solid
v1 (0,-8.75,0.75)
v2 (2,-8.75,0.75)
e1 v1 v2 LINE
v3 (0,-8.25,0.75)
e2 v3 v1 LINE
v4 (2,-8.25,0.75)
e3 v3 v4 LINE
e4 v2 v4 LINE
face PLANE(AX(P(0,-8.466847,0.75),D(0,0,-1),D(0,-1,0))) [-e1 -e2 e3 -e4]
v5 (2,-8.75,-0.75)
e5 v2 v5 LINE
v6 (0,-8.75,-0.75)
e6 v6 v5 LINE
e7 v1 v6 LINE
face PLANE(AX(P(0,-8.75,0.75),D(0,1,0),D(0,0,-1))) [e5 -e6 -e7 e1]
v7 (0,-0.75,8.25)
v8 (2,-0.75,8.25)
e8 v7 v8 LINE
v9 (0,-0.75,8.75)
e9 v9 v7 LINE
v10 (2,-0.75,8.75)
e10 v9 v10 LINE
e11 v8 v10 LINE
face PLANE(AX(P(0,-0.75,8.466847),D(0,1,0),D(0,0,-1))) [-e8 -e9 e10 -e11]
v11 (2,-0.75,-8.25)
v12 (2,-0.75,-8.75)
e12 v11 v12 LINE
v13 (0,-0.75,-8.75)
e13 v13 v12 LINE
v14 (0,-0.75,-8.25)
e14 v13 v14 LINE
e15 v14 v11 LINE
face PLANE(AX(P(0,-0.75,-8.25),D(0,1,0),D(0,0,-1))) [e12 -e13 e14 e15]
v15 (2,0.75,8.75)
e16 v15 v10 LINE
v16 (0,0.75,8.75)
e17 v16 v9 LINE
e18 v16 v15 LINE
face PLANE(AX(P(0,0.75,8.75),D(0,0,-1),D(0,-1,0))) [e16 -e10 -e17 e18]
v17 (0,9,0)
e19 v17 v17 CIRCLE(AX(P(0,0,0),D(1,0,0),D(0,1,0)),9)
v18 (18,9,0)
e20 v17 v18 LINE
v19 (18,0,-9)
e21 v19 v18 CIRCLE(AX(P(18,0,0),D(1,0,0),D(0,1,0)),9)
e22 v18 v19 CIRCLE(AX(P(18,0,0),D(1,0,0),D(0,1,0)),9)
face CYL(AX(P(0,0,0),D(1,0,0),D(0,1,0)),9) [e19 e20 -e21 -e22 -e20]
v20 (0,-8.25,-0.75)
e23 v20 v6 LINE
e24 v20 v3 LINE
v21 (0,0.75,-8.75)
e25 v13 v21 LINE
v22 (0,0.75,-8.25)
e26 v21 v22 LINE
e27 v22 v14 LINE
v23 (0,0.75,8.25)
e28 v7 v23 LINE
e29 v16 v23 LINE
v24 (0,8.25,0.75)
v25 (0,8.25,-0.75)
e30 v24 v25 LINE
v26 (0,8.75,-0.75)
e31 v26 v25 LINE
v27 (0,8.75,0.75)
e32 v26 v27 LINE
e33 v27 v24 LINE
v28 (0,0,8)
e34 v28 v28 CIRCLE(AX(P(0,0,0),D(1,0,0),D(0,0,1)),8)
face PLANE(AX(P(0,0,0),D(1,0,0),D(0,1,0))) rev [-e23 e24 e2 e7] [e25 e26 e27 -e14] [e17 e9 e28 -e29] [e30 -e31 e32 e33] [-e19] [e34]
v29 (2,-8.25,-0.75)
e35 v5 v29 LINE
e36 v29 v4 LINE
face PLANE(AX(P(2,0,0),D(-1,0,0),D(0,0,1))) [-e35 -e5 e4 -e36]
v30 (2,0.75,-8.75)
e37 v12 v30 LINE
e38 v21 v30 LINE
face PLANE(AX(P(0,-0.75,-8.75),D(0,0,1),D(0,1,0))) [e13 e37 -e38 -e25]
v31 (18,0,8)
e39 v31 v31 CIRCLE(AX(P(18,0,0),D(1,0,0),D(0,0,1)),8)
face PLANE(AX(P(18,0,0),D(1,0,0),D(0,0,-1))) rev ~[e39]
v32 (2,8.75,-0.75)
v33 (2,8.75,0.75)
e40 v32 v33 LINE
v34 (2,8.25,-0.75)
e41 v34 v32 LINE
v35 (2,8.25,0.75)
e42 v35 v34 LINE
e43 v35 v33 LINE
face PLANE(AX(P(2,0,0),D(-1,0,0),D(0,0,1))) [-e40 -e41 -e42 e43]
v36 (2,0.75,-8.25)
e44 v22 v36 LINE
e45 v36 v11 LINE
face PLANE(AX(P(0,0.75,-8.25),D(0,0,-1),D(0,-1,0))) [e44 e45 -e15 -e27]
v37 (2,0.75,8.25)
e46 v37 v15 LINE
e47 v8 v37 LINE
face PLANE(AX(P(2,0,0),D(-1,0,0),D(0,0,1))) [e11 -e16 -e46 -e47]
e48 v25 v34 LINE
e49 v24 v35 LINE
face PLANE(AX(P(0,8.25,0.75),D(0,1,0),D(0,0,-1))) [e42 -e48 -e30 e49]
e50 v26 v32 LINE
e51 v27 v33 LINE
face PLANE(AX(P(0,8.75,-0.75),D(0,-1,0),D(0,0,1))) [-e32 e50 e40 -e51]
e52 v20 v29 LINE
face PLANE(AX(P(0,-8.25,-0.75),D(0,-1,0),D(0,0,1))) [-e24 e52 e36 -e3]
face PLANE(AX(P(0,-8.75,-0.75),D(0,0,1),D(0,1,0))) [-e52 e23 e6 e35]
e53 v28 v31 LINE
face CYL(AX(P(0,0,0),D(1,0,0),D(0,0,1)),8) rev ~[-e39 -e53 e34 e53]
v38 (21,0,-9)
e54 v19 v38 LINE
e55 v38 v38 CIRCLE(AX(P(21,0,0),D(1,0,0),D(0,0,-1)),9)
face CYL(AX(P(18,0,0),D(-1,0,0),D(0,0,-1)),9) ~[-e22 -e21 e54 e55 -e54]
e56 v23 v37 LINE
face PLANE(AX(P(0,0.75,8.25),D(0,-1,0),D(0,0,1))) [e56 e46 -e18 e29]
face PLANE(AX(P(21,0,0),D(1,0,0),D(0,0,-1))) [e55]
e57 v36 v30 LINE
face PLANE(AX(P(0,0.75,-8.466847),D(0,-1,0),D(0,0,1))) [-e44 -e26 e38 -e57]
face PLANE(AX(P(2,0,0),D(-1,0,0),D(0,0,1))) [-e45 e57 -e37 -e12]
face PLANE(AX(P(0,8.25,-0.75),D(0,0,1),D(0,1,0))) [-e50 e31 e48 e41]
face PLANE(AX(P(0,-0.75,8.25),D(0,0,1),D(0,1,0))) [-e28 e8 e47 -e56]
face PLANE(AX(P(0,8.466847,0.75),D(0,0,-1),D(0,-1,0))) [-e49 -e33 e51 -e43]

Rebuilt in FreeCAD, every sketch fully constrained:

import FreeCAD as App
import Part
import Sketcher

doc = App.newDocument("Part")
params = doc.addObject("Spreadsheet::Sheet", "Params")
for row, (alias, value) in enumerate([
    ("sketch1_width", "18 mm"),
    ("sketch1_height", "9 mm"),
    ("revolution_angle", "360 deg"),
    ("sketch2_diameter", "16 mm"),
    ("hole_diameter", "16 mm"),
    ("sketch3_diameter", "18 mm"),
    ("pad1_length", "3 mm"),
    ("sketch4_width", "1.5 mm"),
    ("sketch4_width2", "0.5 mm"),
    ("pocket1_length", "2 mm"),
], start=1):
    params.set(f"A{row}", alias)
    params.set(f"B{row}", "=" + value)
    params.setAlias(f"B{row}", alias)

body = doc.addObject("PartDesign::Body", "Body")

# Sketch on XY plane
sketch1 = doc.addObject("Sketcher::SketchObject", "Sketch")
body.addObject(sketch1)
sketch1.AttachmentSupport = (doc.XY_Plane, [""])
sketch1.MapMode = "FlatFace"
sketch1.addGeometry(Part.LineSegment(App.Vector(0, 9, 0), App.Vector(0, 0, 0)), False)
sketch1.addGeometry(Part.LineSegment(App.Vector(0, 0, 0), App.Vector(18, 0, 0)), False)
sketch1.addGeometry(Part.LineSegment(App.Vector(18, 0, 0), App.Vector(18, 9, 0)), False)
sketch1.addGeometry(Part.LineSegment(App.Vector(18, 9, 0), App.Vector(0, 9, 0)), False)
sketch1.addConstraint(Sketcher.Constraint("Coincident", 0, 2, 1, 1))
sketch1.addConstraint(Sketcher.Constraint("Coincident", 1, 2, 2, 1))
sketch1.addConstraint(Sketcher.Constraint("Coincident", 2, 2, 3, 1))
sketch1.addConstraint(Sketcher.Constraint("Coincident", 3, 2, 0, 1))
sketch1.addConstraint(Sketcher.Constraint("Vertical", 0))
sketch1.addConstraint(Sketcher.Constraint("Horizontal", 1))
sketch1.addConstraint(Sketcher.Constraint("Vertical", 2))
sketch1.addConstraint(Sketcher.Constraint("Horizontal", 3))
sketch1.addConstraint(Sketcher.Constraint("Coincident", 0, 2, -1, 1))
sketch1.addConstraint(Sketcher.Constraint("DistanceX", 1, 1, 1, 2, 18.0))
sketch1.addConstraint(Sketcher.Constraint("DistanceY", 0, 2, 0, 1, 9.0))
sketch1.setExpression("Constraints[9]", "Params.sketch1_width")
sketch1.setExpression("Constraints[10]", "Params.sketch1_height")
revolution = doc.addObject("PartDesign::Revolution", "Revolution")
body.addObject(revolution)
revolution.Profile = sketch1
revolution.ReferenceAxis = (sketch1, ["H_Axis"])
revolution.setExpression("Angle", "Params.revolution_angle")

# Sketch on YZ plane
sketch2 = doc.addObject("Sketcher::SketchObject", "Sketch001")
body.addObject(sketch2)
sketch2.AttachmentSupport = (doc.YZ_Plane, [""])
sketch2.MapMode = "FlatFace"
sketch2.addGeometry(Part.Circle(App.Vector(0, 0, 0), App.Vector(0, 0, 1), 8), False)
sketch2.addConstraint(Sketcher.Constraint("Coincident", 0, 3, -1, 1))
sketch2.addConstraint(Sketcher.Constraint("Diameter", 0, 16.0))
sketch2.setExpression("Constraints[1]", "Params.sketch2_diameter")
doc.recompute()
hole = doc.addObject("PartDesign::Hole", "Hole")
body.addObject(hole)
hole.Profile = sketch2
hole.ThreadType = "None"
hole.setExpression("Diameter", "Params.hole_diameter")
hole.DepthType = "ThroughAll"
hole.Reversed = True

# Sketch on YZ plane
sketch3 = doc.addObject("Sketcher::SketchObject", "Sketch002")
body.addObject(sketch3)
sketch3.AttachmentSupport = (doc.YZ_Plane, [""])
sketch3.MapMode = "FlatFace"
sketch3.AttachmentOffset = App.Placement(App.Vector(0, 0, 18), App.Rotation())
sketch3.addGeometry(Part.Circle(App.Vector(0, 0, 0), App.Vector(0, 0, 1), 9), False)
sketch3.addConstraint(Sketcher.Constraint("Coincident", 0, 3, -1, 1))
sketch3.addConstraint(Sketcher.Constraint("Diameter", 0, 18.0))
sketch3.setExpression("Constraints[1]", "Params.sketch3_diameter")
pad1 = doc.addObject("PartDesign::Pad", "Pad")
body.addObject(pad1)
pad1.Profile = sketch3
pad1.setExpression("Length", "Params.pad1_length")

# Sketch on YZ plane
sketch4 = doc.addObject("Sketcher::SketchObject", "Sketch003")
body.addObject(sketch4)
sketch4.AttachmentSupport = (doc.YZ_Plane, [""])
sketch4.MapMode = "FlatFace"
sketch4.addGeometry(Part.LineSegment(App.Vector(-0.8, 8.2, 0), App.Vector(-0.8, 8.8, 0)), False)
sketch4.addGeometry(Part.LineSegment(App.Vector(-0.8, 8.8, 0), App.Vector(0.8, 8.8, 0)), False)
sketch4.addGeometry(Part.LineSegment(App.Vector(0.8, 8.8, 0), App.Vector(0.8, 8.2, 0)), False)
sketch4.addGeometry(Part.LineSegment(App.Vector(0.8, 8.2, 0), App.Vector(-0.8, 8.2, 0)), False)
sketch4.addGeometry(Part.LineSegment(App.Vector(8.2, 0.8, 0), App.Vector(8.8, 0.8, 0)), False)
sketch4.addGeometry(Part.LineSegment(App.Vector(8.8, 0.8, 0), App.Vector(8.8, -0.8, 0)), False)
sketch4.addGeometry(Part.LineSegment(App.Vector(8.8, -0.8, 0), App.Vector(8.2, -0.8, 0)), False)
sketch4.addGeometry(Part.LineSegment(App.Vector(8.2, -0.8, 0), App.Vector(8.2, 0.8, 0)), False)
sketch4.addGeometry(Part.LineSegment(App.Vector(-8.8, 0.8, 0), App.Vector(-8.2, 0.8, 0)), False)
sketch4.addGeometry(Part.LineSegment(App.Vector(-8.2, 0.8, 0), App.Vector(-8.2, -0.8, 0)), False)
sketch4.addGeometry(Part.LineSegment(App.Vector(-8.2, -0.8, 0), App.Vector(-8.8, -0.8, 0)), False)
sketch4.addGeometry(Part.LineSegment(App.Vector(-8.8, -0.8, 0), App.Vector(-8.8, 0.8, 0)), False)
sketch4.addGeometry(Part.LineSegment(App.Vector(0.8, -8.2, 0), App.Vector(0.8, -8.8, 0)), False)
sketch4.addGeometry(Part.LineSegment(App.Vector(0.8, -8.8, 0), App.Vector(-0.8, -8.8, 0)), False)
sketch4.addGeometry(Part.LineSegment(App.Vector(-0.8, -8.8, 0), App.Vector(-0.8, -8.2, 0)), False)
sketch4.addGeometry(Part.LineSegment(App.Vector(-0.8, -8.2, 0), App.Vector(0.8, -8.2, 0)), False)
sketch4.addConstraint(Sketcher.Constraint("Coincident", 0, 2, 1, 1))
sketch4.addConstraint(Sketcher.Constraint("Coincident", 1, 2, 2, 1))
sketch4.addConstraint(Sketcher.Constraint("Coincident", 2, 2, 3, 1))
sketch4.addConstraint(Sketcher.Constraint("Coincident", 3, 2, 0, 1))
sketch4.addConstraint(Sketcher.Constraint("Coincident", 4, 2, 5, 1))
sketch4.addConstraint(Sketcher.Constraint("Coincident", 5, 2, 6, 1))
sketch4.addConstraint(Sketcher.Constraint("Coincident", 6, 2, 7, 1))
sketch4.addConstraint(Sketcher.Constraint("Coincident", 7, 2, 4, 1))
sketch4.addConstraint(Sketcher.Constraint("Coincident", 8, 2, 9, 1))
sketch4.addConstraint(Sketcher.Constraint("Coincident", 9, 2, 10, 1))
sketch4.addConstraint(Sketcher.Constraint("Coincident", 10, 2, 11, 1))
sketch4.addConstraint(Sketcher.Constraint("Coincident", 11, 2, 8, 1))
sketch4.addConstraint(Sketcher.Constraint("Coincident", 12, 2, 13, 1))
sketch4.addConstraint(Sketcher.Constraint("Coincident", 13, 2, 14, 1))
sketch4.addConstraint(Sketcher.Constraint("Coincident", 14, 2, 15, 1))
sketch4.addConstraint(Sketcher.Constraint("Coincident", 15, 2, 12, 1))
sketch4.addConstraint(Sketcher.Constraint("Vertical", 0))
sketch4.addConstraint(Sketcher.Constraint("Horizontal", 1))
sketch4.addConstraint(Sketcher.Constraint("Vertical", 2))
sketch4.addConstraint(Sketcher.Constraint("Horizontal", 3))
sketch4.addConstraint(Sketcher.Constraint("Horizontal", 4))
sketch4.addConstraint(Sketcher.Constraint("Vertical", 5))
sketch4.addConstraint(Sketcher.Constraint("Horizontal", 6))
sketch4.addConstraint(Sketcher.Constraint("Vertical", 7))
sketch4.addConstraint(Sketcher.Constraint("Horizontal", 8))
sketch4.addConstraint(Sketcher.Constraint("Vertical", 9))
sketch4.addConstraint(Sketcher.Constraint("Horizontal", 10))
sketch4.addConstraint(Sketcher.Constraint("Vertical", 11))
sketch4.addConstraint(Sketcher.Constraint("Vertical", 12))
sketch4.addConstraint(Sketcher.Constraint("Horizontal", 13))
sketch4.addConstraint(Sketcher.Constraint("Vertical", 14))
sketch4.addConstraint(Sketcher.Constraint("Horizontal", 15))
sketch4.addConstraint(Sketcher.Constraint("Symmetric", 6, 2, 8, 2, -1, 1))
sketch4.addConstraint(Sketcher.Constraint("Symmetric", 4, 2, 10, 2, -1, 1))
sketch4.addConstraint(Sketcher.Constraint("Symmetric", 0, 2, 12, 2, -1, 1))
sketch4.addConstraint(Sketcher.Constraint("Symmetric", 2, 2, 14, 2, -1, 1))
sketch4.addConstraint(Sketcher.Constraint("Horizontal", 7, 2, 8, 2))
sketch4.addConstraint(Sketcher.Constraint("Vertical", 2, 2, 12, 2))
sketch4.addConstraint(Sketcher.Constraint("Equal", 10, 0))
sketch4.addConstraint(Sketcher.Constraint("Equal", 15, 5))
sketch4.addConstraint(Sketcher.Constraint("DistanceX", 1, 1, 1, 2, 1.5))
sketch4.addConstraint(Sketcher.Constraint("DistanceX", 4, 1, 4, 2, 0.5))
sketch4.addConstraint(Sketcher.Constraint("DistanceX", 2, 2, 4, 2, 8.0))
sketch4.addConstraint(Sketcher.Constraint("DistanceY", 4, 2, 1, 2, 8.0))
sketch4.setExpression("Constraints[40]", "Params.sketch4_width")
sketch4.setExpression("Constraints[41]", "Params.sketch4_width2")
pocket1 = doc.addObject("PartDesign::Pocket", "Pocket")
body.addObject(pocket1)
pocket1.Profile = sketch4
pocket1.setExpression("Length", "Params.pocket1_length")
pocket1.Reversed = True

doc.recompute()
